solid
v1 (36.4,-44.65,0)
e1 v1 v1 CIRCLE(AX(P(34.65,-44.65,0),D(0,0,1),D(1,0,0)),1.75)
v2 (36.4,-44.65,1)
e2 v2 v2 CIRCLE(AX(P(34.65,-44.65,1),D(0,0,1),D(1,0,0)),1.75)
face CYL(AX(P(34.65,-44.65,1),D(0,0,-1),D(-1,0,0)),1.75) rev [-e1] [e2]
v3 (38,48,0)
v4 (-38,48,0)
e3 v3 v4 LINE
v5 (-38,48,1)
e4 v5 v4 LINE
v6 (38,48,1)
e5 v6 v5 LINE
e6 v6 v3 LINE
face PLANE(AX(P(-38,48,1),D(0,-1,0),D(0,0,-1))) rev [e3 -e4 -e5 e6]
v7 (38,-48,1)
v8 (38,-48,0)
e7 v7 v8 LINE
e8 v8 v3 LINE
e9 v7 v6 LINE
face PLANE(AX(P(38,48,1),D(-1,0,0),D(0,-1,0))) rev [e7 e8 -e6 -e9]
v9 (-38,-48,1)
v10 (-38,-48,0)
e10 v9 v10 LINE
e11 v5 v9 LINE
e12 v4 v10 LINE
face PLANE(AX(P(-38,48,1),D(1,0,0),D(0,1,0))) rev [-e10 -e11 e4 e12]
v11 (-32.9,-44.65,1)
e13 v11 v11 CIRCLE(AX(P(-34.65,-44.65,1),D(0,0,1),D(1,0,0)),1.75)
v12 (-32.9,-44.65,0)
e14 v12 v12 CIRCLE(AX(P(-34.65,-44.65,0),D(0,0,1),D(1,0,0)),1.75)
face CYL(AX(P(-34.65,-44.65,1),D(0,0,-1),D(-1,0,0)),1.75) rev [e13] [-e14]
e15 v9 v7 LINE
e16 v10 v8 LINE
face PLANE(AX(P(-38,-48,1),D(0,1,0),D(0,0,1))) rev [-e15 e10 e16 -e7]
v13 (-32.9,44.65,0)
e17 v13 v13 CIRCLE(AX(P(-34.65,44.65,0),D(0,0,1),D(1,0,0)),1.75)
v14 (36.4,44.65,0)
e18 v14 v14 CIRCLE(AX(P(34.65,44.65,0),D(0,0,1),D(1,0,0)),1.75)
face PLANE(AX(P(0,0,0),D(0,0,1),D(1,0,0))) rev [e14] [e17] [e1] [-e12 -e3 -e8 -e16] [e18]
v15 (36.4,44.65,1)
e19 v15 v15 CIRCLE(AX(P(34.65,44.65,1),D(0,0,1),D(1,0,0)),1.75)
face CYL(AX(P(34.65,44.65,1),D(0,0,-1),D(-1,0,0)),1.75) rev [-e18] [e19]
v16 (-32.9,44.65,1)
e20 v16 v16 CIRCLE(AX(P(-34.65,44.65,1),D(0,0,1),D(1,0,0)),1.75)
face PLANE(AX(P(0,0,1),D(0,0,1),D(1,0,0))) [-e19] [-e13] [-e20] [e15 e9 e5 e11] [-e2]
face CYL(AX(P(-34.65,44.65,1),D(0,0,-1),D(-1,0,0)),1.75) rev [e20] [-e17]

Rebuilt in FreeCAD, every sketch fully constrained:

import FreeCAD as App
import Part
import Sketcher

doc = App.newDocument("Part")
params = doc.addObject("Spreadsheet::Sheet", "Params")
for row, (alias, value) in enumerate([
    ("sketch1_diameter", "3.5 mm"),
    ("sketch1_width", "76 mm"),
    ("sketch1_height", "96 mm"),
    ("pad1_length", "1 mm"),
], start=1):
    params.set(f"A{row}", alias)
    params.set(f"B{row}", "=" + value)
    params.setAlias(f"B{row}", alias)

body = doc.addObject("PartDesign::Body", "Body")

sketch1 = body.newObject("Sketcher::SketchObject", "Sketch")
sketch1.AttachmentSupport = (doc.getObject("XY_Plane"), [""])
sketch1.MapMode = "FlatFace"
sketch1.addGeometry([
    Part.LineSegment(App.Vector(-38, 48, 0), App.Vector(-38, -48, 0)),
    Part.LineSegment(App.Vector(-38, -48, 0), App.Vector(38, -48, 0)),
    Part.LineSegment(App.Vector(38, -48, 0), App.Vector(38, 48, 0)),
    Part.LineSegment(App.Vector(38, 48, 0), App.Vector(-38, 48, 0)),
    Part.Circle(App.Vector(-34.6, -44.6, 0), App.Vector(0, 0, 1), 1.8),
    Part.Circle(App.Vector(34.6, -44.6, 0), App.Vector(0, 0, 1), 1.8),
    Part.Circle(App.Vector(-34.6, 44.6, 0), App.Vector(0, 0, 1), 1.8),
    Part.Circle(App.Vector(34.6, 44.6, 0), App.Vector(0, 0, 1), 1.8),
], False)
sketch1.addConstraint([
    Sketcher.Constraint("Coincident", 0, 2, 1, 1),
    Sketcher.Constraint("Coincident", 1, 2, 2, 1),
    Sketcher.Constraint("Coincident", 2, 2, 3, 1),
    Sketcher.Constraint("Coincident", 3, 2, 0, 1),
    Sketcher.Constraint("Vertical", 0),
    Sketcher.Constraint("Horizontal", 1),
    Sketcher.Constraint("Vertical", 2),
    Sketcher.Constraint("Horizontal", 3),
    Sketcher.Constraint("Equal", 4, 5),
    Sketcher.Constraint("Equal", 5, 6),
    Sketcher.Constraint("Equal", 6, 7),
    Sketcher.Constraint("Symmetric", 5, 3, 6, 3, -1, 1),
    Sketcher.Constraint("Symmetric", 4, 3, 7, 3, -1, 1),
    Sketcher.Constraint("Symmetric", 0, 2, 2, 2, -1, 1),
    Sketcher.Constraint("Symmetric", 4, 3, 5, 3, -2),
    Sketcher.Constraint("Diameter", 4, 3.5),
    Sketcher.Constraint("DistanceX", 1, 1, 1, 2, 76.0),
    Sketcher.Constraint("DistanceY", 0, 2, 0, 1, 96.0),
    Sketcher.Constraint("DistanceX", 4, 3, 5, 3, 69.3),
    Sketcher.Constraint("DistanceY", 4, 3, 6, 3, 89.3),
])
sketch1.setExpression("Constraints[15]", "Params.sketch1_diameter")
sketch1.setExpression("Constraints[16]", "Params.sketch1_width")
sketch1.setExpression("Constraints[17]", "Params.sketch1_height")
pad1 = body.newObject("PartDesign::Pad", "Pad")
pad1.Profile = sketch1
pad1.setExpression("Length", "Params.pad1_length")

doc.recompute()
